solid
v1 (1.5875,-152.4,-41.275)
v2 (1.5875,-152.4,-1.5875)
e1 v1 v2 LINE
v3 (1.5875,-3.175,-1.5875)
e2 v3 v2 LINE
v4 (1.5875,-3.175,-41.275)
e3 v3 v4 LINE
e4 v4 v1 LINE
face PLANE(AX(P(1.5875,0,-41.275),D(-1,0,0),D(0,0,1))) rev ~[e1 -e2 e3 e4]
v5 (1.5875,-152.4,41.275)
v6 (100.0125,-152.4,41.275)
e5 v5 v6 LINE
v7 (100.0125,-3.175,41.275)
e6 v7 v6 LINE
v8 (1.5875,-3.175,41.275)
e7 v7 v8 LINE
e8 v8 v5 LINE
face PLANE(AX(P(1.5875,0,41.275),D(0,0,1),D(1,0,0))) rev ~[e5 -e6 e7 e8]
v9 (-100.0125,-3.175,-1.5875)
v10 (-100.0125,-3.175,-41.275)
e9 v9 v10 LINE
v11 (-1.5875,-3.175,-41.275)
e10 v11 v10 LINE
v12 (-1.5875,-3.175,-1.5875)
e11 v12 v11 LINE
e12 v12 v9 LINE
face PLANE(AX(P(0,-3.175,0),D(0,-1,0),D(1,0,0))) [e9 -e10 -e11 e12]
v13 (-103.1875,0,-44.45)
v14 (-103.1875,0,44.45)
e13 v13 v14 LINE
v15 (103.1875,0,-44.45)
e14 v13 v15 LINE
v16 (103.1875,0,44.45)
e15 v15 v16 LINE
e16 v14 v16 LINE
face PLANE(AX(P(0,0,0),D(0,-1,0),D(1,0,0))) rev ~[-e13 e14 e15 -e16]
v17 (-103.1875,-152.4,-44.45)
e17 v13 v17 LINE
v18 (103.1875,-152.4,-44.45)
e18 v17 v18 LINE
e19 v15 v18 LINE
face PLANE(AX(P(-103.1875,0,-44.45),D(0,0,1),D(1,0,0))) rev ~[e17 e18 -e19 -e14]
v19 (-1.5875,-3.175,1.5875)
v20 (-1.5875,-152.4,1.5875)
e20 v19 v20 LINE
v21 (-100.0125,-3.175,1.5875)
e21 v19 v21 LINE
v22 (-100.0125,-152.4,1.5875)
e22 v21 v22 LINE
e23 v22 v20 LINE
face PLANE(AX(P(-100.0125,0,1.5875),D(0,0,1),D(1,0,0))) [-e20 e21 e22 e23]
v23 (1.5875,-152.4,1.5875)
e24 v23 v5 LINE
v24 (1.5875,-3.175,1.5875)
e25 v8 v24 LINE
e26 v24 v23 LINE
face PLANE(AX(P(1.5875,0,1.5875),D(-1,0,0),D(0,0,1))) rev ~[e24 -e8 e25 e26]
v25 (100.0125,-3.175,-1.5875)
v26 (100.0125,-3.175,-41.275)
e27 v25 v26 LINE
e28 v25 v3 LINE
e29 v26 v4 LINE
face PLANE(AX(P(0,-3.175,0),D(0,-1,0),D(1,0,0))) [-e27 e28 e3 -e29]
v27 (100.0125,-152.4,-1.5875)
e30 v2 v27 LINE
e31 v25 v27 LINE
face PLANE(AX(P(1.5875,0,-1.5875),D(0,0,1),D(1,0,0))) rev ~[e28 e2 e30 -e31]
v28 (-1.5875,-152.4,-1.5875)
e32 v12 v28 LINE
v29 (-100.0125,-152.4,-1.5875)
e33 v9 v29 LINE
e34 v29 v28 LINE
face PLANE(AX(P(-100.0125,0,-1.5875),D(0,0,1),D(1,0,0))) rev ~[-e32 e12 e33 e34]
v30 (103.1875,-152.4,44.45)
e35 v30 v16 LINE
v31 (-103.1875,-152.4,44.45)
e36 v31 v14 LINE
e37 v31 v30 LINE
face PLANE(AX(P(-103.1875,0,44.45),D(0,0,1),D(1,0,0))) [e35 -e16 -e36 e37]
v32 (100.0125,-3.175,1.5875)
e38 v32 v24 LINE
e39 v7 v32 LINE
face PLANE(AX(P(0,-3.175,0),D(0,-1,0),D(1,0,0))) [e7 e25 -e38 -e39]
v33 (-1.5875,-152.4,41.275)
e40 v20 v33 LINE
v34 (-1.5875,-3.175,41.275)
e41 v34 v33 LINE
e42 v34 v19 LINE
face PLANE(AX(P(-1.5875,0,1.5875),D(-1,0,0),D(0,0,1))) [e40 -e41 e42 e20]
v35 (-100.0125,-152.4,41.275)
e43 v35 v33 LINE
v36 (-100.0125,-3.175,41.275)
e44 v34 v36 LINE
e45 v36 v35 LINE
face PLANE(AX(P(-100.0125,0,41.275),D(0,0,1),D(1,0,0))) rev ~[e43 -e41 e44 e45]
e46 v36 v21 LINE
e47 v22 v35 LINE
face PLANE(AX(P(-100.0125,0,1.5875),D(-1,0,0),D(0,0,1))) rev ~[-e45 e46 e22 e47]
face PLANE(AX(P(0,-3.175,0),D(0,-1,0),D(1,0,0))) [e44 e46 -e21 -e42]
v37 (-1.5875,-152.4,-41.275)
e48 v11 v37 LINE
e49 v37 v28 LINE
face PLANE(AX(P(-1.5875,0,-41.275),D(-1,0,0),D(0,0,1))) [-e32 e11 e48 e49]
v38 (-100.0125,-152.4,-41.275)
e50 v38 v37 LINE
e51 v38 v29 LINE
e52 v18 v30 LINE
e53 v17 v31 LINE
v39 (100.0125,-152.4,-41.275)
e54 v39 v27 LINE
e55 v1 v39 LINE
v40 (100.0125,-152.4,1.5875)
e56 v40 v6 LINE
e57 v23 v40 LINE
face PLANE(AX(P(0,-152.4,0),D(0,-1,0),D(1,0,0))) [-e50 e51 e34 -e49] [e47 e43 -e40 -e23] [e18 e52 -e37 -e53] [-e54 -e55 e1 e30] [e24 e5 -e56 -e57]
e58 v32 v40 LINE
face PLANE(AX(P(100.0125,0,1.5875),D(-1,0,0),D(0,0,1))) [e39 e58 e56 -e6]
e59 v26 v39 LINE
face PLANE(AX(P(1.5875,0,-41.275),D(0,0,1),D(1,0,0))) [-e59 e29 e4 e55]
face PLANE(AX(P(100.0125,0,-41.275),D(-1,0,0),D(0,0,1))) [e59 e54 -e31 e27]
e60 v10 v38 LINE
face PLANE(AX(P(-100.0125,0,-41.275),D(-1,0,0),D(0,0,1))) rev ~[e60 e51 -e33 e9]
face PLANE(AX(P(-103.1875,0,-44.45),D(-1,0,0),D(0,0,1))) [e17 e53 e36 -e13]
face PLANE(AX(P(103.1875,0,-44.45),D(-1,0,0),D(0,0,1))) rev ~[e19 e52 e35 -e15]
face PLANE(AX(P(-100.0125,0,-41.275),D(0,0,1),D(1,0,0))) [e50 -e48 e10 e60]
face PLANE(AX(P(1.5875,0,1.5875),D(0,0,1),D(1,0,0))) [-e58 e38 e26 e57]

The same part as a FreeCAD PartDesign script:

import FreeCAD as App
import Part
import Sketcher
Q = App.Units.Quantity


def add_polygon(sketch, points):
    """Adds a closed chain of lines whose ends are joined by coincident constraints."""
    first, n = sketch.GeometryCount, len(points)
    for a, b in zip(points, points[1:] + points[:1]):
        sketch.addGeometry(Part.LineSegment(App.Vector(*a, 0), App.Vector(*b, 0)), False)
    for i in range(n):
        sketch.addConstraint(Sketcher.Constraint("Coincident", first + i, 2, first + (i + 1) % n, 1))

doc = App.newDocument("Part")
body = doc.addObject("PartDesign::Body", "Body")

# Sketch on XZ plane
sketch1 = body.newObject("Sketcher::SketchObject", "Sketch")
sketch1.AttachmentSupport = (doc.getObject("XZ_Plane"), [""])
sketch1.MapMode = "FlatFace"
add_polygon(sketch1, [(-103, 44), (-103, -44), (103, -44), (103, 44)])  # lines 0-3
sketch1.addConstraint([
    Sketcher.Constraint("Vertical", 0),
    Sketcher.Constraint("Horizontal", 1),
    Sketcher.Constraint("Vertical", 2),
    Sketcher.Constraint("Horizontal", 3),
    Sketcher.Constraint("Symmetric", 0, 2, 2, 2, -1, 1),
    Sketcher.Constraint("DistanceY", 0, 2, 0, 1, Q("3.5 in")),
    Sketcher.Constraint("DistanceX", 1, 1, 1, 2, Q("8.125 in")),
])
pad1 = body.newObject("PartDesign::Pad", "Pad")
pad1.Profile = sketch1
pad1.Length = Q("0.125 in")

# Sketch on XZ plane
sketch2 = body.newObject("Sketcher::SketchObject", "Sketch001")
sketch2.AttachmentSupport = (doc.getObject("XZ_Plane"), [""])
sketch2.MapMode = "FlatFace"
add_polygon(sketch2, [(-103, 44), (-103, -44), (103, -44), (103, 44)])  # lines 0-3
add_polygon(sketch2, [(-2, -41), (-100, -41), (-100, -2), (-2, -2)])  # lines 4-7
add_polygon(sketch2, [(100, -41), (2, -41), (2, -2), (100, -2)])  # lines 8-11
add_polygon(sketch2, [(-2, 2), (-100, 2), (-100, 41), (-2, 41)])  # lines 12-15
add_polygon(sketch2, [(100, 2), (2, 2), (2, 41), (100, 41)])  # lines 16-19
sketch2.addConstraint([
    Sketcher.Constraint("Vertical", 0),
    Sketcher.Constraint("Horizontal", 1),
    Sketcher.Constraint("Vertical", 2),
    Sketcher.Constraint("Horizontal", 3),
    Sketcher.Constraint("Horizontal", 4),
    Sketcher.Constraint("Vertical", 5),
    Sketcher.Constraint("Horizontal", 6),
    Sketcher.Constraint("Vertical", 7),
    Sketcher.Constraint("Horizontal", 8),
    Sketcher.Constraint("Vertical", 9),
    Sketcher.Constraint("Horizontal", 10),
    Sketcher.Constraint("Vertical", 11),
    Sketcher.Constraint("Horizontal", 12),
    Sketcher.Constraint("Vertical", 13),
    Sketcher.Constraint("Horizontal", 14),
    Sketcher.Constraint("Vertical", 15),
    Sketcher.Constraint("Horizontal", 16),
    Sketcher.Constraint("Vertical", 17),
    Sketcher.Constraint("Horizontal", 18),
    Sketcher.Constraint("Vertical", 19),
    Sketcher.Constraint("Symmetric", 0, 2, 2, 2, -1, 1),
    Sketcher.Constraint("Symmetric", 10, 2, 12, 2, -1, 1),
    Sketcher.Constraint("Symmetric", 8, 2, 14, 2, -1, 1),
    Sketcher.Constraint("Symmetric", 6, 2, 16, 2, -1, 1),
    Sketcher.Constraint("Symmetric", 4, 2, 18, 2, -1, 1),
    Sketcher.Constraint("Symmetric", 7, 2, 8, 2, -2),
    Sketcher.Constraint("Symmetric", 5, 2, 10, 2, -2),
    Sketcher.Constraint("DistanceY", 0, 2, 0, 1, Q("3.5 in")),
    Sketcher.Constraint("DistanceX", 4, 2, 1, 2, Q("8 in")),
    Sketcher.Constraint("DistanceX", 0, 2, 6, 2, Q("4 in")),
    Sketcher.Constraint("DistanceX", 1, 1, 1, 2, Q("8.125 in")),
    Sketcher.Constraint("DistanceY", 5, 1, 5, 2, Q("1.5625 in")),
    Sketcher.Constraint("DistanceY", 4, 2, 13, 2, Q("3.25 in")),
])
pad2 = body.newObject("PartDesign::Pad", "Pad001")
pad2.Profile = sketch2
pad2.Length = Q("6 in")

doc.recompute()
